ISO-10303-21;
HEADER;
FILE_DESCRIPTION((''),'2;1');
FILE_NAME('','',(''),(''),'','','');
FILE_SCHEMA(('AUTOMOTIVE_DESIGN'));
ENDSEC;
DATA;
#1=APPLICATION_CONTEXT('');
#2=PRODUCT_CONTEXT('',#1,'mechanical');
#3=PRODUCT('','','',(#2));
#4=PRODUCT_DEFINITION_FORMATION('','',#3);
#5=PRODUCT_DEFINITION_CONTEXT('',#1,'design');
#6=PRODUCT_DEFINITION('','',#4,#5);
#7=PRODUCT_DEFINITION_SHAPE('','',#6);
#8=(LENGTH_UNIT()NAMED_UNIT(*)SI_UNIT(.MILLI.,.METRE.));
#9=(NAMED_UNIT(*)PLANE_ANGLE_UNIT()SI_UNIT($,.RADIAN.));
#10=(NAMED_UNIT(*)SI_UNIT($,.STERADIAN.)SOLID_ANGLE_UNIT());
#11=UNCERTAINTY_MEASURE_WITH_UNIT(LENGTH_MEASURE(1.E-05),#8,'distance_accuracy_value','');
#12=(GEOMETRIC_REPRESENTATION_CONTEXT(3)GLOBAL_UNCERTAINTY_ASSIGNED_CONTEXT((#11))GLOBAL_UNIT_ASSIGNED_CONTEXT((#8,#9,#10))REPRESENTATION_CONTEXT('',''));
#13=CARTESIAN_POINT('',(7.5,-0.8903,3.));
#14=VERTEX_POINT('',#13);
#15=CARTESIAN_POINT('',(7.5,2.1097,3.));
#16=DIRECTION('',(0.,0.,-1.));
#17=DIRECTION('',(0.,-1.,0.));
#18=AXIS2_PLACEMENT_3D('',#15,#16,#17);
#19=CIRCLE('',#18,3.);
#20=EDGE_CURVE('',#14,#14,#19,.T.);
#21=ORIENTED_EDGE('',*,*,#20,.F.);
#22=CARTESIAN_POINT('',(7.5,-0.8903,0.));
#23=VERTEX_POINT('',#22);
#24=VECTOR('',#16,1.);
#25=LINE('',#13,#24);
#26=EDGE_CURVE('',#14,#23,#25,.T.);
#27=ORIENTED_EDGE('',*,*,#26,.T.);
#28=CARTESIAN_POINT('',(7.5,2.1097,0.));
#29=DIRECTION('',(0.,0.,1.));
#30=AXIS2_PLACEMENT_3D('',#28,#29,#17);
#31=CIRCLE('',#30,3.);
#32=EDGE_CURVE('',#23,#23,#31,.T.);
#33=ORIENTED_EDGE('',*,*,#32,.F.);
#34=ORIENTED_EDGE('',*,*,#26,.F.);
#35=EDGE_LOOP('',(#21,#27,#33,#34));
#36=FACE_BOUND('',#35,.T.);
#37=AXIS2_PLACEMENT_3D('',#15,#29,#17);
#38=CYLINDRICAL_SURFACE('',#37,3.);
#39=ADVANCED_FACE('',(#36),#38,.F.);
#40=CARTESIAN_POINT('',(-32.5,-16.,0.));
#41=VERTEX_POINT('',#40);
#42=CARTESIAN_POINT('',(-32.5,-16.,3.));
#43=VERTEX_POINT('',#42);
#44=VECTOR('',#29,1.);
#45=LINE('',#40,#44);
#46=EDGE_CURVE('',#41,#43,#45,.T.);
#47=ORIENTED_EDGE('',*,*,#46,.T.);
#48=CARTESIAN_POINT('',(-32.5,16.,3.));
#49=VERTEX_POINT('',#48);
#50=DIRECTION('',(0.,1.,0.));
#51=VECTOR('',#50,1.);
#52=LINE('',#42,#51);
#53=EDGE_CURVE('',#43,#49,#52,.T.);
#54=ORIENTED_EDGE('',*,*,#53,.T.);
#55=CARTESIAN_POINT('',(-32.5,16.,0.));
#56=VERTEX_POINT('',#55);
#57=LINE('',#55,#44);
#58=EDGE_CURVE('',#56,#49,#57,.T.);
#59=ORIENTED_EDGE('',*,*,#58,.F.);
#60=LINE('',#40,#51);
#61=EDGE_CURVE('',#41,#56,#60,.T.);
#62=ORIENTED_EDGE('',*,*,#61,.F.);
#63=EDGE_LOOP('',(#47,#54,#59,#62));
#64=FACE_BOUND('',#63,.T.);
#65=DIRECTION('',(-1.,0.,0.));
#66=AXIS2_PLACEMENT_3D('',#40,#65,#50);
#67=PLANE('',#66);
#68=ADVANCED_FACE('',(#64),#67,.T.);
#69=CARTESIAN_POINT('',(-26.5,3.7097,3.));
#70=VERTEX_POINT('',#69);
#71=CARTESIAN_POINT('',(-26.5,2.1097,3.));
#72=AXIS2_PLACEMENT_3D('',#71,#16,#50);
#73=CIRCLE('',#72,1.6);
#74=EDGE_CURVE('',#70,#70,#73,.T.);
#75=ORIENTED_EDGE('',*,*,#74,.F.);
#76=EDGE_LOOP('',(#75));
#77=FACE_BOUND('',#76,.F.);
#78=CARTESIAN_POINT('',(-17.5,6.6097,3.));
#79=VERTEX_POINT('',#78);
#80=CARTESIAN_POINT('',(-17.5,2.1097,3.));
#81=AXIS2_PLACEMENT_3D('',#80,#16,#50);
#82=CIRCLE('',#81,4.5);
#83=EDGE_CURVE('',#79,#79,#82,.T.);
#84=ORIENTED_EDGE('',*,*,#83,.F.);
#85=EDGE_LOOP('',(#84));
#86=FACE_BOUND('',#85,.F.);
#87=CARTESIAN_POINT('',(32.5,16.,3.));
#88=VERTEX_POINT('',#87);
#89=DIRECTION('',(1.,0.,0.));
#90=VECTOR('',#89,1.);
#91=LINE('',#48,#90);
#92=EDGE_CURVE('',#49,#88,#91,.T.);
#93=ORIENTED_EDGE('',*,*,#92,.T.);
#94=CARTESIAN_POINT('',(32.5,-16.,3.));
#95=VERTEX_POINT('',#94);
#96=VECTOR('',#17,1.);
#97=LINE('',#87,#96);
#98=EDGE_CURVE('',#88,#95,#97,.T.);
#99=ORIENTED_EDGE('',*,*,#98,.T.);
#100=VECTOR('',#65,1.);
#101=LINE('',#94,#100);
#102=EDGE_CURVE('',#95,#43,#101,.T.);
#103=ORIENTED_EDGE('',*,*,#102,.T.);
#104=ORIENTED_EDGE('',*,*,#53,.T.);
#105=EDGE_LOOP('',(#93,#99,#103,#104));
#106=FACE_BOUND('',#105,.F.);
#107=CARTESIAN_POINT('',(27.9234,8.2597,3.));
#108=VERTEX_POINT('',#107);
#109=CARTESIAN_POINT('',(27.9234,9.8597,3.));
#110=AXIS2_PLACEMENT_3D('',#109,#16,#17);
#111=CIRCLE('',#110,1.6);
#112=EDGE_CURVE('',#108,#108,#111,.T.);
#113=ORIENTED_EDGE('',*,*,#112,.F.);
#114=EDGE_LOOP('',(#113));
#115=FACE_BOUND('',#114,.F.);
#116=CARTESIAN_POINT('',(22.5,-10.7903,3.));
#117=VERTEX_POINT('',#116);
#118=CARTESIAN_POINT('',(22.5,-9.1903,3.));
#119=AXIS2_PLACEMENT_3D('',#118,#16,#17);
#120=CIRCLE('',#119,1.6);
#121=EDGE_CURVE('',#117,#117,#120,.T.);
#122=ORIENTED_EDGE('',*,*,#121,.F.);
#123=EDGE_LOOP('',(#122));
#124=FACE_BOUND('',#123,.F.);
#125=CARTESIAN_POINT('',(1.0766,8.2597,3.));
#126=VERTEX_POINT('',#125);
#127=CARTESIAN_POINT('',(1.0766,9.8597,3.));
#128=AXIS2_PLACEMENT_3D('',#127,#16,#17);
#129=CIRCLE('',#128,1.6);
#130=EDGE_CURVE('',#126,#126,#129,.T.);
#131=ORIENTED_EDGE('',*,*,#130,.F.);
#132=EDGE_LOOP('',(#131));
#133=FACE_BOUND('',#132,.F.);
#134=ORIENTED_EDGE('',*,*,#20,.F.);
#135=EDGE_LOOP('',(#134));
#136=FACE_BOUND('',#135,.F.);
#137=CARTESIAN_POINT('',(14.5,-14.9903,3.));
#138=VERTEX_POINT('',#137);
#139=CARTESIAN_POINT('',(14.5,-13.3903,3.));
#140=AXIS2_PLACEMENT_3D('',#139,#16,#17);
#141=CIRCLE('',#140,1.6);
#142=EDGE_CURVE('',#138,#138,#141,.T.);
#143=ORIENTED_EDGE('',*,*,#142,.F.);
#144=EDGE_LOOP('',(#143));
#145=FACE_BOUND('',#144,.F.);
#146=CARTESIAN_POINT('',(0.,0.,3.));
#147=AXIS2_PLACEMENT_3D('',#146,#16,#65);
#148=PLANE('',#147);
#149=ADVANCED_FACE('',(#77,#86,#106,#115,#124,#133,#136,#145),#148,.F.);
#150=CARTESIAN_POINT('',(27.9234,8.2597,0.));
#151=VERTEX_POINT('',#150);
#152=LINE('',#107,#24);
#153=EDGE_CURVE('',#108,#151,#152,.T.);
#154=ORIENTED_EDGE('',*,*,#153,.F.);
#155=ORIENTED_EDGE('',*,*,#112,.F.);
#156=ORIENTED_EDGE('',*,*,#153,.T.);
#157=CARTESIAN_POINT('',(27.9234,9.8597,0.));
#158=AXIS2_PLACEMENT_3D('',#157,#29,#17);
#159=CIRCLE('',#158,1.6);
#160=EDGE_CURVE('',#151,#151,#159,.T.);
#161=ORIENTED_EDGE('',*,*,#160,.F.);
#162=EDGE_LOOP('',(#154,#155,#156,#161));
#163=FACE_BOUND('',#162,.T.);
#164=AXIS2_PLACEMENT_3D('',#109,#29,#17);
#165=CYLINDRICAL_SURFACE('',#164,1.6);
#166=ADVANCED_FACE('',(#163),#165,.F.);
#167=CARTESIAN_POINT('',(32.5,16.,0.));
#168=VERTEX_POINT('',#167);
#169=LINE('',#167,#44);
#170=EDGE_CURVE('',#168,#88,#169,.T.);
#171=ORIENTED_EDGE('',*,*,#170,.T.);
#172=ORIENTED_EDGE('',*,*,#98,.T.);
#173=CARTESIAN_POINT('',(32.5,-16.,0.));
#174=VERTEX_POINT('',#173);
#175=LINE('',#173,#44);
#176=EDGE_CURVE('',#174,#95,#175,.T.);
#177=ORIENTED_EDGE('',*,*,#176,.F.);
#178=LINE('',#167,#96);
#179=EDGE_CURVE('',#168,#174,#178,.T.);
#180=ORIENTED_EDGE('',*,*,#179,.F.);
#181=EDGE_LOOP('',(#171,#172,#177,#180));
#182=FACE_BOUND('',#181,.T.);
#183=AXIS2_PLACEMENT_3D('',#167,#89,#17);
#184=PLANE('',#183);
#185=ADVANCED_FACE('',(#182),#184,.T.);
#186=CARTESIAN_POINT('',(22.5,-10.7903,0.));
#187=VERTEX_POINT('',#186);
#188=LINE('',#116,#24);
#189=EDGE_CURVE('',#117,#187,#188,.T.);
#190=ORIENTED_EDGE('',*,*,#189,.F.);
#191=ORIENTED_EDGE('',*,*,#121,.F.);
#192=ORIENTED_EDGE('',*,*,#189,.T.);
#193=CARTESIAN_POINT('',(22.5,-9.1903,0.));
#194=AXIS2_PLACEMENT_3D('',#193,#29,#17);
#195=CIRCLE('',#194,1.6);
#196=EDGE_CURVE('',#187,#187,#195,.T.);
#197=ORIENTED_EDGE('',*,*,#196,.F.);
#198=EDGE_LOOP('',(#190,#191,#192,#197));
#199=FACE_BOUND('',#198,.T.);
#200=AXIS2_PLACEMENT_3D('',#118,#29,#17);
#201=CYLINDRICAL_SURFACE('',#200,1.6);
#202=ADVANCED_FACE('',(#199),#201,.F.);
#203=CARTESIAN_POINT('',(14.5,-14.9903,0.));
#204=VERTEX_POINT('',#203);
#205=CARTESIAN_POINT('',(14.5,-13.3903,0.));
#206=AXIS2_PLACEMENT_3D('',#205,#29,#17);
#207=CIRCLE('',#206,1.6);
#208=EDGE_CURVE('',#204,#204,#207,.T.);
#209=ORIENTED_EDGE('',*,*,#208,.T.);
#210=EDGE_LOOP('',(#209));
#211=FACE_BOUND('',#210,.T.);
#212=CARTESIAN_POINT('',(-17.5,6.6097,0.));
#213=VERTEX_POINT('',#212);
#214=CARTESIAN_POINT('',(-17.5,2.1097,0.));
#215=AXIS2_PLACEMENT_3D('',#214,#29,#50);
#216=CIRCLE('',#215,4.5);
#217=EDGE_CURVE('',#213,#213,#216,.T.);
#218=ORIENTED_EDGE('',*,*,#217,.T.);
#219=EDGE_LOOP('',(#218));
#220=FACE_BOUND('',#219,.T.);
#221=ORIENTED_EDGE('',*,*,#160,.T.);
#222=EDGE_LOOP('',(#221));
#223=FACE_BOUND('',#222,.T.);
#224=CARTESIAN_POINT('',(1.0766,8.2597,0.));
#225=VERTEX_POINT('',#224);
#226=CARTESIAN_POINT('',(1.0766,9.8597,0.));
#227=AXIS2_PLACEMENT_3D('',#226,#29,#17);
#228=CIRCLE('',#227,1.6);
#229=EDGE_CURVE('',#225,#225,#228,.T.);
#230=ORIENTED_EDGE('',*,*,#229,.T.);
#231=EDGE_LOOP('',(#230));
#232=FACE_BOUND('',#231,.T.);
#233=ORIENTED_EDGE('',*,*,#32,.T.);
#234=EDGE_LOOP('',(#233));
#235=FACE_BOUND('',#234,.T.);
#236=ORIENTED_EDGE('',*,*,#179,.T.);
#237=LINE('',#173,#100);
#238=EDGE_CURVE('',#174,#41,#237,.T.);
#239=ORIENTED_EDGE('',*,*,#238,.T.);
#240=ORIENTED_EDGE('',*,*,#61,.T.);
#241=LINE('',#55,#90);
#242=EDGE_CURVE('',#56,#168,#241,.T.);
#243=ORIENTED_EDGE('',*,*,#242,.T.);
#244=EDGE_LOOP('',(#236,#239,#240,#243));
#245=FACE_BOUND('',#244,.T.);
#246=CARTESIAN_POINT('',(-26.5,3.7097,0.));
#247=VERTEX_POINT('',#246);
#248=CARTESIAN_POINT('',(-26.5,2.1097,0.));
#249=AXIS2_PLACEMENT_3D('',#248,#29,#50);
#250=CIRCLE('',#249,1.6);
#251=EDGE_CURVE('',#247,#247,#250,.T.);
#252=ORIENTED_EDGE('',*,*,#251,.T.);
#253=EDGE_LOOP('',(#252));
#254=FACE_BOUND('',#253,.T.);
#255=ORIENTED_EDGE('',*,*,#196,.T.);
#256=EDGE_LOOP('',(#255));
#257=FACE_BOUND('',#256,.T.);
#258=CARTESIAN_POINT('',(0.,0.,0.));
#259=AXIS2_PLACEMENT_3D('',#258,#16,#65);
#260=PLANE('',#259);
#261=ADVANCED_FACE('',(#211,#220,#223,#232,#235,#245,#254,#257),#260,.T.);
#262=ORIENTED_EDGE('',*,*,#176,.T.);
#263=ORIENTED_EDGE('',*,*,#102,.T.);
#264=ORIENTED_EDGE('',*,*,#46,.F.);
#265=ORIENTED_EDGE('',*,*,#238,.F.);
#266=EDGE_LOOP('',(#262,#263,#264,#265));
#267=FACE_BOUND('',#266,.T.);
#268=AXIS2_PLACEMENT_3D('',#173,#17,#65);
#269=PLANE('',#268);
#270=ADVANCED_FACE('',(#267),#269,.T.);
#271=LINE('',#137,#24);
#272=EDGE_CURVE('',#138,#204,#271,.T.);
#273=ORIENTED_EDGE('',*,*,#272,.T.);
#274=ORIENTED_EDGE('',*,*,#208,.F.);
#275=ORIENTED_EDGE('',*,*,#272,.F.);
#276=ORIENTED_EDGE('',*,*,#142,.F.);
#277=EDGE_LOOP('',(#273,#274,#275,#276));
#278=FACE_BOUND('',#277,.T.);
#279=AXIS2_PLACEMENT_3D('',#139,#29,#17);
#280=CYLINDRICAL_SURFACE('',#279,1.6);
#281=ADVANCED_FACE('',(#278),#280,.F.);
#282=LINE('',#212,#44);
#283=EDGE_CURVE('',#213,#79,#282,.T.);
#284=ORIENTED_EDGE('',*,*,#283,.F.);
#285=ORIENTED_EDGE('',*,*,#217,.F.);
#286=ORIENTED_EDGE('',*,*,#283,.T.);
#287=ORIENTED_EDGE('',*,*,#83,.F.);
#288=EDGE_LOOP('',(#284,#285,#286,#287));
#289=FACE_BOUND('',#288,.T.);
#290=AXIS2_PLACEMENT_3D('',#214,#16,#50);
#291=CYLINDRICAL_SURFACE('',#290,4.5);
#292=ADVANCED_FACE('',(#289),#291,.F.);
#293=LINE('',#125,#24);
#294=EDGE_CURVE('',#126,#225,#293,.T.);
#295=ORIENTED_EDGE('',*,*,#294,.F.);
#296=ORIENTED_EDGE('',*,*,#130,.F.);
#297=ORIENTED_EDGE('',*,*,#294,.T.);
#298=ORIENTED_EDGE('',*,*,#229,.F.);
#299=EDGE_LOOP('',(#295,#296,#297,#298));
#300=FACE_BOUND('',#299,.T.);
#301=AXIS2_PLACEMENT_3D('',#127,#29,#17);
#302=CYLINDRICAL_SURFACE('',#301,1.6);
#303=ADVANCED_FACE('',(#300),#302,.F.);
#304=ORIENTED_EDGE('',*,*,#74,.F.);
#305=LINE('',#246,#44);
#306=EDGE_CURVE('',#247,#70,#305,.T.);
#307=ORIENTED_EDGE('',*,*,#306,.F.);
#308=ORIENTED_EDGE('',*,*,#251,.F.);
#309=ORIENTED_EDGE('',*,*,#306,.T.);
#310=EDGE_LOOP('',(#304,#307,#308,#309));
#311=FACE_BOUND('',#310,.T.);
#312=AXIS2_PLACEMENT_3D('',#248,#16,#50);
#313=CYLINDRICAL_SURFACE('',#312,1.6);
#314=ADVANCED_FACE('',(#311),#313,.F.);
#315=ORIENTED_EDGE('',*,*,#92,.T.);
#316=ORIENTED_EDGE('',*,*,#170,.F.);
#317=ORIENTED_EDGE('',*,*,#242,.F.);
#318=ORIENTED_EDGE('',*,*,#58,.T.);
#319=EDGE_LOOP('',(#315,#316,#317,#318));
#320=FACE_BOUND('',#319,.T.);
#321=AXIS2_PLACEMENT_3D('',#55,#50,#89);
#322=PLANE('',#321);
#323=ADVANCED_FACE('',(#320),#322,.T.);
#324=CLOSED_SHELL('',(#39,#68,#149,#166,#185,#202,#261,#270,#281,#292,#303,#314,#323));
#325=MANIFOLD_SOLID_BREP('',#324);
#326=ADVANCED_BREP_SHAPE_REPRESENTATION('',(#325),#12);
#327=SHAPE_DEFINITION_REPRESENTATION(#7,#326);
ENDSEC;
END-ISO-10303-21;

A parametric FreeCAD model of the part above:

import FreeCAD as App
import Part
import Sketcher


def add_polygon(sketch, points):
    """Adds a closed chain of lines whose ends are joined by coincident constraints."""
    first, n = sketch.GeometryCount, len(points)
    for a, b in zip(points, points[1:] + points[:1]):
        sketch.addGeometry(Part.LineSegment(App.Vector(*a, 0), App.Vector(*b, 0)), False)
    for i in range(n):
        sketch.addConstraint(Sketcher.Constraint("Coincident", first + i, 2, first + (i + 1) % n, 1))

doc = App.newDocument("Part")
body = doc.addObject("PartDesign::Body", "Body")

# Sketch on XY plane
sketch1 = doc.addObject("Sketcher::SketchObject", "Sketch")
body.addObject(sketch1)
sketch1.AttachmentSupport = (doc.XY_Plane, [""])
sketch1.MapMode = "FlatFace"
add_polygon(sketch1, [(-32.5, -16), (32.5, -16), (32.5, 16), (-32.5, 16)])  # lines 0-3
sketch1.addConstraint(Sketcher.Constraint("Horizontal", 0))
sketch1.addConstraint(Sketcher.Constraint("Vertical", 1))
sketch1.addConstraint(Sketcher.Constraint("Horizontal", 2))
sketch1.addConstraint(Sketcher.Constraint("Vertical", 3))
sketch1.addConstraint(Sketcher.Constraint("Symmetric", 0, 2, 2, 2, -1, 1))
sketch1.addConstraint(Sketcher.Constraint("DistanceX", -1, 1, 0, 2, 32.5))
sketch1.addConstraint(Sketcher.Constraint("DistanceY", 1, 1, 1, 2, 32.0))
pad1 = doc.addObject("PartDesign::Pad", "Pad")
body.addObject(pad1)
pad1.Profile = sketch1
pad1.Length = 3

# Sketch on XY plane
sketch2 = doc.addObject("Sketcher::SketchObject", "Sketch001")
body.addObject(sketch2)
sketch2.AttachmentSupport = (doc.XY_Plane, [""])
sketch2.MapMode = "FlatFace"
sketch2.AttachmentOffset = App.Placement(App.Vector(0, 0, 3), App.Rotation())
sketch2.addGeometry(Part.Circle(App.Vector(7.5, 2.1097, 0), App.Vector(0, 0, 1), 3), False)
sketch2.addConstraint(Sketcher.Constraint("Diameter", 0, 6.0))
sketch2.addConstraint(Sketcher.Constraint("DistanceX", -1, 1, 0, 3, 7.5))
sketch2.addConstraint(Sketcher.Constraint("DistanceY", -1, 1, 0, 3, 2.1097))
doc.recompute()
hole = doc.addObject("PartDesign::Hole", "Hole")
body.addObject(hole)
hole.Profile = sketch2
hole.ThreadType = "None"
hole.Diameter = 6
hole.DepthType = "ThroughAll"

# Sketch on XY plane
sketch3 = doc.addObject("Sketcher::SketchObject", "Sketch002")
body.addObject(sketch3)
sketch3.AttachmentSupport = (doc.XY_Plane, [""])
sketch3.MapMode = "FlatFace"
sketch3.AttachmentOffset = App.Placement(App.Vector(0, 0, 3), App.Rotation())
sketch3.addGeometry(Part.Circle(App.Vector(14.5, -13.3903, 0), App.Vector(0, 0, 1), 1.6), False)
sketch3.addConstraint(Sketcher.Constraint("Diameter", 0, 3.2))
sketch3.addConstraint(Sketcher.Constraint("DistanceX", -1, 1, 0, 3, 14.5))
sketch3.addConstraint(Sketcher.Constraint("DistanceY", 0, 3, -1, 1, 13.3903))
doc.recompute()
hole2 = doc.addObject("PartDesign::Hole", "Hole001")
body.addObject(hole2)
hole2.Profile = sketch3
hole2.ThreadType = "None"
hole2.Diameter = 3.2
hole2.DepthType = "ThroughAll"

# Sketch on XY plane
sketch4 = doc.addObject("Sketcher::SketchObject", "Sketch003")
body.addObject(sketch4)
sketch4.AttachmentSupport = (doc.XY_Plane, [""])
sketch4.MapMode = "FlatFace"
sketch4.AttachmentOffset = App.Placement(App.Vector(0, 0, 3), App.Rotation())
sketch4.addGeometry(Part.Circle(App.Vector(1.0766, 9.8597, 0), App.Vector(0, 0, 1), 1.6), False)
sketch4.addConstraint(Sketcher.Constraint("Diameter", 0, 3.2))
sketch4.addConstraint(Sketcher.Constraint("DistanceX", -1, 1, 0, 3, 1.0766))
sketch4.addConstraint(Sketcher.Constraint("DistanceY", -1, 1, 0, 3, 9.8597))
doc.recompute()
hole3 = doc.addObject("PartDesign::Hole", "Hole002")
body.addObject(hole3)
hole3.Profile = sketch4
hole3.ThreadType = "None"
hole3.Diameter = 3.2
hole3.DepthType = "ThroughAll"

# Sketch on XY plane
sketch5 = doc.addObject("Sketcher::SketchObject", "Sketch004")
body.addObject(sketch5)
sketch5.AttachmentSupport = (doc.XY_Plane, [""])
sketch5.MapMode = "FlatFace"
sketch5.AttachmentOffset = App.Placement(App.Vector(0, 0, 3), App.Rotation())
sketch5.addGeometry(Part.Circle(App.Vector(27.9234, 9.8597, 0), App.Vector(0, 0, 1), 1.6), False)
sketch5.addConstraint(Sketcher.Constraint("Diameter", 0, 3.2))
sketch5.addConstraint(Sketcher.Constraint("DistanceX", -1, 1, 0, 3, 27.9234))
sketch5.addConstraint(Sketcher.Constraint("DistanceY", -1, 1, 0, 3, 9.8597))
doc.recompute()
hole4 = doc.addObject("PartDesign::Hole", "Hole003")
body.addObject(hole4)
hole4.Profile = sketch5
hole4.ThreadType = "None"
hole4.Diameter = 3.2
hole4.DepthType = "ThroughAll"

# Sketch on XY plane
sketch6 = doc.addObject("Sketcher::SketchObject", "Sketch005")
body.addObject(sketch6)
sketch6.AttachmentSupport = (doc.XY_Plane, [""])
sketch6.MapMode = "FlatFace"
sketch6.AttachmentOffset = App.Placement(App.Vector(0, 0, 3), App.Rotation())
sketch6.addGeometry(Part.Circle(App.Vector(22.5, -9.1903, 0), App.Vector(0, 0, 1), 1.6), False)
sketch6.addConstraint(Sketcher.Constraint("Diameter", 0, 3.2))
sketch6.addConstraint(Sketcher.Constraint("DistanceX", -1, 1, 0, 3, 22.5))
sketch6.addConstraint(Sketcher.Constraint("DistanceY", 0, 3, -1, 1, 9.1903))
doc.recompute()
hole5 = doc.addObject("PartDesign::Hole", "Hole004")
body.addObject(hole5)
hole5.Profile = sketch6
hole5.ThreadType = "None"
hole5.Diameter = 3.2
hole5.DepthType = "ThroughAll"

# Sketch on XY plane
sketch7 = doc.addObject("Sketcher::SketchObject", "Sketch006")
body.addObject(sketch7)
sketch7.AttachmentSupport = (doc.XY_Plane, [""])
sketch7.MapMode = "FlatFace"
sketch7.addGeometry(Part.Circle(App.Vector(-17.5, 2.1097, 0), App.Vector(0, 0, 1), 4.5), False)
sketch7.addConstraint(Sketcher.Constraint("Diameter", 0, 9.0))
sketch7.addConstraint(Sketcher.Constraint("DistanceX", 0, 3, -1, 1, 17.5))
sketch7.addConstraint(Sketcher.Constraint("DistanceY", -1, 1, 0, 3, 2.1097))
doc.recompute()
hole6 = doc.addObject("PartDesign::Hole", "Hole005")
body.addObject(hole6)
hole6.Profile = sketch7
hole6.ThreadType = "None"
hole6.Diameter = 9
hole6.DepthType = "ThroughAll"
hole6.Reversed = True

# Sketch on XY plane
sketch8 = doc.addObject("Sketcher::SketchObject", "Sketch007")
body.addObject(sketch8)
sketch8.AttachmentSupport = (doc.XY_Plane, [""])
sketch8.MapMode = "FlatFace"
sketch8.addGeometry(Part.Circle(App.Vector(-26.5, 2.1097, 0), App.Vector(0, 0, 1), 1.6), False)
sketch8.addConstraint(Sketcher.Constraint("Diameter", 0, 3.2))
sketch8.addConstraint(Sketcher.Constraint("DistanceX", 0, 3, -1, 1, 26.5))
sketch8.addConstraint(Sketcher.Constraint("DistanceY", -1, 1, 0, 3, 2.1097))
doc.recompute()
hole7 = doc.addObject("PartDesign::Hole", "Hole006")
body.addObject(hole7)
hole7.Profile = sketch8
hole7.ThreadType = "None"
hole7.Diameter = 3.2
hole7.DepthType = "ThroughAll"
hole7.Reversed = True

doc.recompute()
